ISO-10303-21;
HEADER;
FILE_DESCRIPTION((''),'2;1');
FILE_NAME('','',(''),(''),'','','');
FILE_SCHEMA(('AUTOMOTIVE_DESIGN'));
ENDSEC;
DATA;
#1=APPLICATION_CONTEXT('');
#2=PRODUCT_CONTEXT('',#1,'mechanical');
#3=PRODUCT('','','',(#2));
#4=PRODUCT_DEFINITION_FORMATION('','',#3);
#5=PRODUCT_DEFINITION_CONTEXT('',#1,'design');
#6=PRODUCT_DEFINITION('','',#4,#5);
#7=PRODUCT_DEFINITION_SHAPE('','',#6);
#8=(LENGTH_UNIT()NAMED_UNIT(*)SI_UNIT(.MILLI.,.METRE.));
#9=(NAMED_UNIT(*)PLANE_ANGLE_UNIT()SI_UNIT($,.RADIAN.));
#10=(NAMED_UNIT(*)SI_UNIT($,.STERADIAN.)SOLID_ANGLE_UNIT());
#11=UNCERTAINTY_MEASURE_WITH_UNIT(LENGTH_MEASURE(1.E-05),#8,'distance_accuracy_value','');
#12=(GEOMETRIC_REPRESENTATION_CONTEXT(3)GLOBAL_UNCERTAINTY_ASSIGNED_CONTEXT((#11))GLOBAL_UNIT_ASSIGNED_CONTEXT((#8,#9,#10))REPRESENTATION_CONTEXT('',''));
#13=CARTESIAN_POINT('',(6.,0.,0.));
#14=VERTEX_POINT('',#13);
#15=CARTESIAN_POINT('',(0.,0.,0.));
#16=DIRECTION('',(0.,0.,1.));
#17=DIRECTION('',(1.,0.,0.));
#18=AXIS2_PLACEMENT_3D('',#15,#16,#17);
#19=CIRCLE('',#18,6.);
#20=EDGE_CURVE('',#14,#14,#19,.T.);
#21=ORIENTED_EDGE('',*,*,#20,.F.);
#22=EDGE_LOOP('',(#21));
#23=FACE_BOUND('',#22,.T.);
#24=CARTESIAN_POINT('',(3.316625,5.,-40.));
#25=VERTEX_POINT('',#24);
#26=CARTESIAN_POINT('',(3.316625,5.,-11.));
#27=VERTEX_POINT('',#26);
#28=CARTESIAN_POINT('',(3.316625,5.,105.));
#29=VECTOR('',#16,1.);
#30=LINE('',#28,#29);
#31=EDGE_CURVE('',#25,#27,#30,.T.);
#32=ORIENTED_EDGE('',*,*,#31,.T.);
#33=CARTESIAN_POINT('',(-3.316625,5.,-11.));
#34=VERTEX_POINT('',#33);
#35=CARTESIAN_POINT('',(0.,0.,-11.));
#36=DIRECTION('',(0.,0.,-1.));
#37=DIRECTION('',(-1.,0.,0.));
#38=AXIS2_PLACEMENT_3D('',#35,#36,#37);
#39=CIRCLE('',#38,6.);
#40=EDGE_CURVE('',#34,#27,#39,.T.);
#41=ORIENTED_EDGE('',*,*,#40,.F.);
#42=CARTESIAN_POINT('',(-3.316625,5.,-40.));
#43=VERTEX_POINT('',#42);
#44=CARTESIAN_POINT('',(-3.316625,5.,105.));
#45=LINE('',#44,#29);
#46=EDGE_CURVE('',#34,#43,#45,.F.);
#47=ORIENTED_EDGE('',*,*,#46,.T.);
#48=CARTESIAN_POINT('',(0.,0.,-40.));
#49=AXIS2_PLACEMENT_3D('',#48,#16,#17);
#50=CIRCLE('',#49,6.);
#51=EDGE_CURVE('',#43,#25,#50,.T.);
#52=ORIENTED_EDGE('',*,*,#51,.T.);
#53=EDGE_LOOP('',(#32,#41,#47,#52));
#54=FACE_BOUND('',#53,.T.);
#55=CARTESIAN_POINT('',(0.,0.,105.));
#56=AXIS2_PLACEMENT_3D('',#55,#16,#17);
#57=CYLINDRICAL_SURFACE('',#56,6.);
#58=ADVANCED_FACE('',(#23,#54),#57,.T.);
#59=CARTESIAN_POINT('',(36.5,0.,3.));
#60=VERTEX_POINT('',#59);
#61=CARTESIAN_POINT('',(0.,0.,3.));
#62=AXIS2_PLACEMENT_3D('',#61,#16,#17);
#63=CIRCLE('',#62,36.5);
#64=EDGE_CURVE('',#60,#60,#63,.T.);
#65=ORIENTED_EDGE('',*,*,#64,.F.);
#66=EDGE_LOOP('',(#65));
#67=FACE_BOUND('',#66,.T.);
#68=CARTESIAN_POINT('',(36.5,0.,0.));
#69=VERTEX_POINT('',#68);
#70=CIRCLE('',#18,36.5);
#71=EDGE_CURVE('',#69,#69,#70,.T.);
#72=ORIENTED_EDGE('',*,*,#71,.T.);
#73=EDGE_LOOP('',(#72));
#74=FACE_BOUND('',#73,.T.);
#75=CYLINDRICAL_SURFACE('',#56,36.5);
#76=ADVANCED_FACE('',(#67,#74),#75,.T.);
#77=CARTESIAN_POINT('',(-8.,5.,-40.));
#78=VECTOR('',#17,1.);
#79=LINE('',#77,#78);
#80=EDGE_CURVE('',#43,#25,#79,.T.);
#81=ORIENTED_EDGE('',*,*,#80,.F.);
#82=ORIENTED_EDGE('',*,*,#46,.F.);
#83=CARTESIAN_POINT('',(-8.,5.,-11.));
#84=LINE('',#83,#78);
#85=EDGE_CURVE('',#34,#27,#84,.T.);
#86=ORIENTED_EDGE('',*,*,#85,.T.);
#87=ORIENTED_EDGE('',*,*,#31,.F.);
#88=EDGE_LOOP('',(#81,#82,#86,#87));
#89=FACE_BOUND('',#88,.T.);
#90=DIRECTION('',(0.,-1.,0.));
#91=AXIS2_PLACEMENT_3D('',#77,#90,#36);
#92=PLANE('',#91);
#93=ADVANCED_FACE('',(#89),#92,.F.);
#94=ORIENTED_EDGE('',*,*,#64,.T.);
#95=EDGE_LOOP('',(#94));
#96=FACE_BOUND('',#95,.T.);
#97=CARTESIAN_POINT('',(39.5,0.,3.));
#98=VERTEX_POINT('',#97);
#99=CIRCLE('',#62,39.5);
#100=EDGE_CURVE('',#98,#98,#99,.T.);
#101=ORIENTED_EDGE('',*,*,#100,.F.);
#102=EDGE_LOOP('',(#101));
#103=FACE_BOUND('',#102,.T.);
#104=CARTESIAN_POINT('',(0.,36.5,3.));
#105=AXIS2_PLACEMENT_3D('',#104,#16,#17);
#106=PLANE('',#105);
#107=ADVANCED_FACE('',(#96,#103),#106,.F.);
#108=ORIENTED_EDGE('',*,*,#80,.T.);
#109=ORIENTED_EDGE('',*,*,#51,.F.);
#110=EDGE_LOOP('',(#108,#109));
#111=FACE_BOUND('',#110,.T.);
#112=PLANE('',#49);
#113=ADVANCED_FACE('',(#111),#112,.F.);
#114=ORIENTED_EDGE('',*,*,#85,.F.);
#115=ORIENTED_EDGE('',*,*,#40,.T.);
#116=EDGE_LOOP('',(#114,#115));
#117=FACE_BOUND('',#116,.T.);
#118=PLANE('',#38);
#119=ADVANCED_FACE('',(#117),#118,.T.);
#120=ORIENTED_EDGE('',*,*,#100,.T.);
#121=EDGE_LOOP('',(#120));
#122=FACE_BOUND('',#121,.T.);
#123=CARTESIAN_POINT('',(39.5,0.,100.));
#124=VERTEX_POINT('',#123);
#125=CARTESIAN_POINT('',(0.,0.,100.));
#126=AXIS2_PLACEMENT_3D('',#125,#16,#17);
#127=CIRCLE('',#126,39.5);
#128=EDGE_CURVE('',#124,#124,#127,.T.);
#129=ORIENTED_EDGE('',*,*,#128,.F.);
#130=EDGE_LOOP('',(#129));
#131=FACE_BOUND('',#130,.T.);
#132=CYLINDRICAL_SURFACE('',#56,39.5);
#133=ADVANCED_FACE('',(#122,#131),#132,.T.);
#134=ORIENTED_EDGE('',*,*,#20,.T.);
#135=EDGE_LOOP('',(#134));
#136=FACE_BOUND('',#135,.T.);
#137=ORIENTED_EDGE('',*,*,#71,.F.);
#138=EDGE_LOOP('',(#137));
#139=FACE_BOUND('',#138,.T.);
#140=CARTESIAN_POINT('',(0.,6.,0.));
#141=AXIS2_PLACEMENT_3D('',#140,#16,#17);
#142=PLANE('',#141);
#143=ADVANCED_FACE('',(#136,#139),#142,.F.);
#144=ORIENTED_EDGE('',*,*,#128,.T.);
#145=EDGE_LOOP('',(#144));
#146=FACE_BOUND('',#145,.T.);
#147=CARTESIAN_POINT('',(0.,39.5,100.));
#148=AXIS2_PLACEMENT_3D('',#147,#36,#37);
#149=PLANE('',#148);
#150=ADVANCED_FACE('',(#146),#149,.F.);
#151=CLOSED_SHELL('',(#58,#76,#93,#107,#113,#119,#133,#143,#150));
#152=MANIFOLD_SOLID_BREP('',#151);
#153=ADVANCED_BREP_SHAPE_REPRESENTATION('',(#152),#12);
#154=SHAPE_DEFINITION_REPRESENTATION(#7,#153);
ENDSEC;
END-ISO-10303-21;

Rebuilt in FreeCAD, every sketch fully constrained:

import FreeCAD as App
import Part
import Sketcher

doc = App.newDocument("Part")
params = doc.addObject("Spreadsheet::Sheet", "Params")
for row, (alias, value) in enumerate([
    ("sketch1_width", "6 mm"),
    ("sketch1_width2", "3 mm"),
    ("sketch1_height", "40 mm"),
    ("sketch1_height2", "97 mm"),
    ("sketch1_width3", "30.5 mm"),
    ("revolution_angle", "360 deg"),
    ("sketch2_width", "16 mm"),
    ("sketch2_height", "5 mm"),
    ("pocket1_length", "29 mm"),
], start=1):
    params.set(f"A{row}", alias)
    params.set(f"B{row}", "=" + value)
    params.setAlias(f"B{row}", alias)

body = doc.addObject("PartDesign::Body", "Body")

# Sketch on YZ plane
sketch1 = doc.addObject("Sketcher::SketchObject", "Sketch")
body.addObject(sketch1)
sketch1.AttachmentSupport = (doc.YZ_Plane, [""])
sketch1.MapMode = "FlatFace"
sketch1.addGeometry([
    Part.LineSegment(App.Vector(0, -40, 0), App.Vector(6, -40, 0)),  # 0
    Part.LineSegment(App.Vector(6, -40, 0), App.Vector(6, 0, 0)),  # 1
    Part.LineSegment(App.Vector(6, 0, 0), App.Vector(36.5, 0, 0)),  # 2
    Part.LineSegment(App.Vector(36.5, 0, 0), App.Vector(36.5, 3, 0)),  # 3
    Part.LineSegment(App.Vector(36.5, 3, 0), App.Vector(39.5, 3, 0)),  # 4
    Part.LineSegment(App.Vector(39.5, 3, 0), App.Vector(39.5, 100, 0)),  # 5
    Part.LineSegment(App.Vector(39.5, 100, 0), App.Vector(0, 100, 0)),  # 6
    Part.LineSegment(App.Vector(0, 100, 0), App.Vector(0, -40, 0)),  # 7
], False)
sketch1.addConstraint([
    Sketcher.Constraint("Coincident", 0, 2, 1, 1),
    Sketcher.Constraint("Coincident", 1, 2, 2, 1),
    Sketcher.Constraint("Coincident", 2, 2, 3, 1),
    Sketcher.Constraint("Coincident", 3, 2, 4, 1),
    Sketcher.Constraint("Coincident", 4, 2, 5, 1),
    Sketcher.Constraint("Coincident", 5, 2, 6, 1),
    Sketcher.Constraint("Coincident", 6, 2, 7, 1),
    Sketcher.Constraint("Coincident", 7, 2, 0, 1),
    Sketcher.Constraint("Horizontal", 0),
    Sketcher.Constraint("Vertical", 1),
    Sketcher.Constraint("Horizontal", 2),
    Sketcher.Constraint("Vertical", 3),
    Sketcher.Constraint("Horizontal", 4),
    Sketcher.Constraint("Vertical", 5),
    Sketcher.Constraint("Horizontal", 6),
    Sketcher.Constraint("Vertical", 7),
    Sketcher.Constraint("PointOnObject", 1, 2, -1),
    Sketcher.Constraint("PointOnObject", 6, 2, -2),
    Sketcher.Constraint("Equal", 4, 3),
    Sketcher.Constraint("DistanceX", 0, 1, 0, 2, 6.0),
    Sketcher.Constraint("DistanceX", 4, 1, 4, 2, 3.0),
    Sketcher.Constraint("DistanceY", 1, 1, 1, 2, 40.0),
    Sketcher.Constraint("DistanceY", 5, 1, 5, 2, 97.0),
    Sketcher.Constraint("DistanceX", 2, 1, 2, 2, 30.5),
])
sketch1.setExpression("Constraints[19]", "Params.sketch1_width")
sketch1.setExpression("Constraints[20]", "Params.sketch1_width2")
sketch1.setExpression("Constraints[21]", "Params.sketch1_height")
sketch1.setExpression("Constraints[22]", "Params.sketch1_height2")
sketch1.setExpression("Constraints[23]", "Params.sketch1_width3")
revolution = doc.addObject("PartDesign::Revolution", "Revolution")
body.addObject(revolution)
revolution.Profile = sketch1
revolution.ReferenceAxis = (sketch1, ["V_Axis"])
revolution.setExpression("Angle", "Params.revolution_angle")

# Sketch on XY plane
sketch2 = doc.addObject("Sketcher::SketchObject", "Sketch001")
body.addObject(sketch2)
sketch2.AttachmentSupport = (doc.XY_Plane, [""])
sketch2.MapMode = "FlatFace"
sketch2.AttachmentOffset = App.Placement(App.Vector(0, 0, -11), App.Rotation())
sketch2.addGeometry([
    Part.LineSegment(App.Vector(-8, 10, 0), App.Vector(-8, 5, 0)),
    Part.LineSegment(App.Vector(-8, 5, 0), App.Vector(8, 5, 0)),
    Part.LineSegment(App.Vector(8, 5, 0), App.Vector(8, 10, 0)),
    Part.LineSegment(App.Vector(8, 10, 0), App.Vector(-8, 10, 0)),
], False)
sketch2.addConstraint([
    Sketcher.Constraint("Coincident", 0, 2, 1, 1),
    Sketcher.Constraint("Coincident", 1, 2, 2, 1),
    Sketcher.Constraint("Coincident", 2, 2, 3, 1),
    Sketcher.Constraint("Coincident", 3, 2, 0, 1),
    Sketcher.Constraint("Vertical", 0),
    Sketcher.Constraint("Horizontal", 1),
    Sketcher.Constraint("Vertical", 2),
    Sketcher.Constraint("Horizontal", 3),
    Sketcher.Constraint("DistanceX", 1, 1, 1, 2, 16.0),
    Sketcher.Constraint("DistanceY", 0, 2, 0, 1, 5.0),
    Sketcher.Constraint("DistanceX", 0, 2, -1, 1, 8.0),
    Sketcher.Constraint("DistanceY", -1, 1, 0, 2, 5.0),
])
sketch2.setExpression("Constraints[8]", "Params.sketch2_width")
sketch2.setExpression("Constraints[9]", "Params.sketch2_height")
pocket1 = doc.addObject("PartDesign::Pocket", "Pocket")
body.addObject(pocket1)
pocket1.Profile = sketch2
pocket1.setExpression("Length", "Params.pocket1_length")

doc.recompute()
